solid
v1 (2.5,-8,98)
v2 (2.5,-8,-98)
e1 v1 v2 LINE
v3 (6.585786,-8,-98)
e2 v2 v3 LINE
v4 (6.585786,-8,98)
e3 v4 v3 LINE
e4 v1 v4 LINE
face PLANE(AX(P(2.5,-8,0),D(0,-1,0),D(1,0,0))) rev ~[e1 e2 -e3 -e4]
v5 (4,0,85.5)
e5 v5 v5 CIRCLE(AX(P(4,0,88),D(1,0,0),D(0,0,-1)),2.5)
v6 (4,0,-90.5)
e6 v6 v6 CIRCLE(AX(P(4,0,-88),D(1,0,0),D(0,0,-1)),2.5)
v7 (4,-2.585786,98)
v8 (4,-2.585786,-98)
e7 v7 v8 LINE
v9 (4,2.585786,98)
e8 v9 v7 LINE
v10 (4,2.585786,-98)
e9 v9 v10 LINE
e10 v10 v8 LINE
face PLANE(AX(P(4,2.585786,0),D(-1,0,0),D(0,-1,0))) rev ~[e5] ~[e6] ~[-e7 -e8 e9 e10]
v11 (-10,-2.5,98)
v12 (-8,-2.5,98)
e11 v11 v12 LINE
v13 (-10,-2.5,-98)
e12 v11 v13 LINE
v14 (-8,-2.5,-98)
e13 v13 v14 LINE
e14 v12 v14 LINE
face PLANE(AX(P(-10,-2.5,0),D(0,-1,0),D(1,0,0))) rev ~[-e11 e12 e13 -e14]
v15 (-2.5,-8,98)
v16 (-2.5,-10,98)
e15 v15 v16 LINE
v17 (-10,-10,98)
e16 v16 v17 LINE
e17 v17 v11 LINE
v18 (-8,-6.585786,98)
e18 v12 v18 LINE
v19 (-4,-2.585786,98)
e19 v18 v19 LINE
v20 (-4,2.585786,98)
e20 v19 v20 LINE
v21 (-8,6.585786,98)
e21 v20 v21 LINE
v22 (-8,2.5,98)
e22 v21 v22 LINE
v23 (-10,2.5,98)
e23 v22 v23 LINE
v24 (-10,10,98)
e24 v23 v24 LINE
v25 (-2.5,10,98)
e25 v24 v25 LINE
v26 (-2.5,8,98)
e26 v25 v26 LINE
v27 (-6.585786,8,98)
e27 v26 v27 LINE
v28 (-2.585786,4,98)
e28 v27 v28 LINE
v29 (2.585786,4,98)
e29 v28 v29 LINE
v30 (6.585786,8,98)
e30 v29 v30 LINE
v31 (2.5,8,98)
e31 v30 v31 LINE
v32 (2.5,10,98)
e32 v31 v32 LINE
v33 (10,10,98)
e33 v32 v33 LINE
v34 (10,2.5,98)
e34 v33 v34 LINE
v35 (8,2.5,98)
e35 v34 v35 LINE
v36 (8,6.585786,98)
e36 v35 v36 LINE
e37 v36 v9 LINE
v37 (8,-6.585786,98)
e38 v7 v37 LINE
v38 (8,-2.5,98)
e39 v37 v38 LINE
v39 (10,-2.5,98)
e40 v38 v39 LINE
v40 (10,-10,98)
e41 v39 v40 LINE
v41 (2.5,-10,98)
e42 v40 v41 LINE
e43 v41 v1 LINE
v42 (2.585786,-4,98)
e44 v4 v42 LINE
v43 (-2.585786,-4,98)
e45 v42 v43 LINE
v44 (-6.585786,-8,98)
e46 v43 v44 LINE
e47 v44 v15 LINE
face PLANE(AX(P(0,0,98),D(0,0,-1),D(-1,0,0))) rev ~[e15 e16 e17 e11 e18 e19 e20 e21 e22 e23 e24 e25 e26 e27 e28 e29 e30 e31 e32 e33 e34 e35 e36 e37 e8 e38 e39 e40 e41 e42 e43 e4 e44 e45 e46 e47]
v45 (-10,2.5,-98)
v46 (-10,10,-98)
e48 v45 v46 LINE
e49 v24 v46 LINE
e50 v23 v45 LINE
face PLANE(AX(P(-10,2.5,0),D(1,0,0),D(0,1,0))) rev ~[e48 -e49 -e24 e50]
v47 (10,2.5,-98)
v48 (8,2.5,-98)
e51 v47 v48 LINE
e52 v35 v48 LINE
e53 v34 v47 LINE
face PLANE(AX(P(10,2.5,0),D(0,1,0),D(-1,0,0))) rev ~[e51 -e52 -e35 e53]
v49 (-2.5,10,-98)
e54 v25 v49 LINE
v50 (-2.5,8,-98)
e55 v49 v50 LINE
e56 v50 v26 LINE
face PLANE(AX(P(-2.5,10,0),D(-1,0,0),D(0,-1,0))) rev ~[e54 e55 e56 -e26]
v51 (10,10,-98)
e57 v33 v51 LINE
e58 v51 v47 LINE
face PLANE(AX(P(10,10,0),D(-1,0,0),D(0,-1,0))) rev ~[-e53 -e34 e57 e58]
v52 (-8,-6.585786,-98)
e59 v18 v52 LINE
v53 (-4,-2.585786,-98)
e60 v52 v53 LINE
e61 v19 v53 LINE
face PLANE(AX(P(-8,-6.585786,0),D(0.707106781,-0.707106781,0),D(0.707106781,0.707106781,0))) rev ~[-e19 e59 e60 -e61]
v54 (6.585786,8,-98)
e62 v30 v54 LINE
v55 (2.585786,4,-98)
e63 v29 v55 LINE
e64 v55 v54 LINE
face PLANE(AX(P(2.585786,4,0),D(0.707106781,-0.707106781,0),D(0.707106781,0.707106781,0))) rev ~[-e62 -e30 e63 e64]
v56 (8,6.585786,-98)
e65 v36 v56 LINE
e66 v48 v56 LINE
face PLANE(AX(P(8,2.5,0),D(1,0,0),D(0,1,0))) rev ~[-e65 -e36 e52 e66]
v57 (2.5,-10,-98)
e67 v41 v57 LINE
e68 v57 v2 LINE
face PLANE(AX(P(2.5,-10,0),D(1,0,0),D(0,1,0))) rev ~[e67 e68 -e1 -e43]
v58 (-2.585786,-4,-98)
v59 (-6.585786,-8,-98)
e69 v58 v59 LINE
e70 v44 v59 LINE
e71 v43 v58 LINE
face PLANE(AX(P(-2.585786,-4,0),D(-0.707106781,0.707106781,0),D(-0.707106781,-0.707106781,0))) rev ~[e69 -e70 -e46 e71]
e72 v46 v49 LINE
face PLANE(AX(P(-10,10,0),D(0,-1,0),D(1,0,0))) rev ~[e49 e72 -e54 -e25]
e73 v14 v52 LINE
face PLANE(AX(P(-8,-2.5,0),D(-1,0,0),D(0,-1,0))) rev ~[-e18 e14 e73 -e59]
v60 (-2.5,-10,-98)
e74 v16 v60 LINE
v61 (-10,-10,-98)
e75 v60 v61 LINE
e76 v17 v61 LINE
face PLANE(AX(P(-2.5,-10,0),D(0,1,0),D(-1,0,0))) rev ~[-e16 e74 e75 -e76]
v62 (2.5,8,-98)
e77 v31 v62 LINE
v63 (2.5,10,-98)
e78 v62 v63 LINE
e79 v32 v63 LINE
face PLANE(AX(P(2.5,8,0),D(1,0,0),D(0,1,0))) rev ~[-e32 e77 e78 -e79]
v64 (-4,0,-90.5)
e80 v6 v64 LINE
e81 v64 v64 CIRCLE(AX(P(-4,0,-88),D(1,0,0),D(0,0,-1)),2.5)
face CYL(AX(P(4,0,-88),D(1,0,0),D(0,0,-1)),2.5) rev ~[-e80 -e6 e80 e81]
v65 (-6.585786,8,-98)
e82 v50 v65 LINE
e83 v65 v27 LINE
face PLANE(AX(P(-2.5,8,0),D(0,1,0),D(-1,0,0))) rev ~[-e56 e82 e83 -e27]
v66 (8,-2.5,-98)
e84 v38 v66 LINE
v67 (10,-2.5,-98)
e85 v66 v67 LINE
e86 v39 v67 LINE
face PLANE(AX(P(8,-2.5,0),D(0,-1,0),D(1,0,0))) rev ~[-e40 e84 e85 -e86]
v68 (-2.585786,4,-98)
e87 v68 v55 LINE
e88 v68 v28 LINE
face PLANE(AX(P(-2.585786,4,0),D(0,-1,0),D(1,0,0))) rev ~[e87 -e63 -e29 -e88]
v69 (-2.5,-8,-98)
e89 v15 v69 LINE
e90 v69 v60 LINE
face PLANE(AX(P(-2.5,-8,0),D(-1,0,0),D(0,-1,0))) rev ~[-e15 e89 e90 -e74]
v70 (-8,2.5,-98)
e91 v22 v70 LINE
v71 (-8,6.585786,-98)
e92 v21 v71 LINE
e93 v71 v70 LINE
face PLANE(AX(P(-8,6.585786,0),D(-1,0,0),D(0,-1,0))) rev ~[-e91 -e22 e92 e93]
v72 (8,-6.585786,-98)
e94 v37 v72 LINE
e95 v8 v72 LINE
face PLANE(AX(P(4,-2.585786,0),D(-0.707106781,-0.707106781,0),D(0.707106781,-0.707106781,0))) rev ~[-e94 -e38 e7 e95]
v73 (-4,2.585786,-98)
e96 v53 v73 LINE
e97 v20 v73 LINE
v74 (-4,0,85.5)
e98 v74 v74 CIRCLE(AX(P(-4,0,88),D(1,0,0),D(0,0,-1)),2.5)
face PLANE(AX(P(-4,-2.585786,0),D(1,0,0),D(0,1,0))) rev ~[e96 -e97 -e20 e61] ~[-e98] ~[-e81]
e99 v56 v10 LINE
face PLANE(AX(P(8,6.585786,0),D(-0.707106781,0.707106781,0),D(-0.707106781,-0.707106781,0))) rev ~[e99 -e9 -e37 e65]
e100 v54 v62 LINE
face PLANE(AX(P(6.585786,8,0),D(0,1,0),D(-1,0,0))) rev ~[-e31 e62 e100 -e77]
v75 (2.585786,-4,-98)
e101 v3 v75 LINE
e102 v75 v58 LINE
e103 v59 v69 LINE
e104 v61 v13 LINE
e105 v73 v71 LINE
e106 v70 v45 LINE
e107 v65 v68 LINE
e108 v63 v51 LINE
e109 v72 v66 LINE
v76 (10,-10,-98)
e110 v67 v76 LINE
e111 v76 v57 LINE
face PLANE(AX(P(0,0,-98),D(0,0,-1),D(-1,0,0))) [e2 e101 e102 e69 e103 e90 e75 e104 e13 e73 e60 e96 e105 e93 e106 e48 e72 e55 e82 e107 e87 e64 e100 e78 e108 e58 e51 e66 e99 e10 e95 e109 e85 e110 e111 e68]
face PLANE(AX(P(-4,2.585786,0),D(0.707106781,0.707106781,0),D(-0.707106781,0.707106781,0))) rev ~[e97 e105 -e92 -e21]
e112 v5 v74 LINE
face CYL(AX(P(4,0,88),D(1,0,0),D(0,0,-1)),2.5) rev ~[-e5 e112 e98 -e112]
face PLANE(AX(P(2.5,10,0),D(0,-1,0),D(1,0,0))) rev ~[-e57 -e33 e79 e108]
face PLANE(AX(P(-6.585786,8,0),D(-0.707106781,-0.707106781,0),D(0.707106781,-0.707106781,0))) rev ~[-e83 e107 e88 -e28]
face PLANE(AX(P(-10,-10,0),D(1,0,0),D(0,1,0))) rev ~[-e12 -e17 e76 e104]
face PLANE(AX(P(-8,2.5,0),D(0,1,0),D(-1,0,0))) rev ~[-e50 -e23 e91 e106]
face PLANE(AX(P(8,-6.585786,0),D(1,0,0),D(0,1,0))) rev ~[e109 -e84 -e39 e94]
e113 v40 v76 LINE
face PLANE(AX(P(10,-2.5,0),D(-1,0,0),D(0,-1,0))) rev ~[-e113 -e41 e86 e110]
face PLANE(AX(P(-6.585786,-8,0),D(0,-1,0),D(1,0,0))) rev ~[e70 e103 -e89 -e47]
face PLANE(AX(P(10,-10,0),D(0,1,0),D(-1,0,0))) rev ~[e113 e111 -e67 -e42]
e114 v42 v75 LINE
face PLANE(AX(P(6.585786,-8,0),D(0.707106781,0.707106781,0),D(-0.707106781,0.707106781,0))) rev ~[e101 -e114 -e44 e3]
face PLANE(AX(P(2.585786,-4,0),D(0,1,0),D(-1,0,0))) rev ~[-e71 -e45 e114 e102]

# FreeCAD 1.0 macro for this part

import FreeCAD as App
import Part
import Sketcher

V = App.Vector
Q = App.Units.Quantity


def add_polygon(sketch, points):
    """Adds a closed chain of lines whose ends are joined by coincident constraints."""
    first, n = sketch.GeometryCount, len(points)
    for a, b in zip(points, points[1:] + points[:1]):
        sketch.addGeometry(Part.LineSegment(App.Vector(*a, 0), App.Vector(*b, 0)), False)
    for i in range(n):
        sketch.addConstraint(Sketcher.Constraint("Coincident", first + i, 2, first + (i + 1) % n, 1))

doc = App.newDocument("Part")
body = doc.addObject("PartDesign::Body", "Body")

# Sketch on XY plane
sketch1 = doc.addObject("Sketcher::SketchObject", "Sketch")
body.addObject(sketch1)
sketch1.AttachmentSupport = (doc.XY_Plane, [""])
sketch1.MapMode = "FlatFace"
add_polygon(sketch1, [(2.6, 4), (-2.6, 4), (-6.6, 8), (-2.5, 8), (-2.5, 10), (-10, 10), (-10, 2.5), (-8, 2.5), (-8, 6.6), (-4, 2.6), (-4, -2.6), (-8, -6.6), (-8, -2.5), (-10, -2.5), (-10, -10), (-2.5, -10), (-2.5, -8), (-6.6, -8), (-2.6, -4), (2.6, -4), (6.6, -8), (2.5, -8), (2.5, -10), (10, -10), (10, -2.5), (8, -2.5), (8, -6.6), (4, -2.6), (4, 2.6), (8, 6.6), (8, 2.5), (10, 2.5), (10, 10), (2.5, 10), (2.5, 8), (6.6, 8)])  # lines 0-35
sketch1.addConstraint(Sketcher.Constraint("Horizontal", 0))
sketch1.addConstraint(Sketcher.Constraint("Horizontal", 2))
sketch1.addConstraint(Sketcher.Constraint("Vertical", 3))
sketch1.addConstraint(Sketcher.Constraint("Horizontal", 4))
sketch1.addConstraint(Sketcher.Constraint("Vertical", 5))
sketch1.addConstraint(Sketcher.Constraint("Horizontal", 6))
sketch1.addConstraint(Sketcher.Constraint("Vertical", 7))
sketch1.addConstraint(Sketcher.Constraint("Vertical", 9))
sketch1.addConstraint(Sketcher.Constraint("Vertical", 11))
sketch1.addConstraint(Sketcher.Constraint("Horizontal", 12))
sketch1.addConstraint(Sketcher.Constraint("Vertical", 13))
sketch1.addConstraint(Sketcher.Constraint("Horizontal", 14))
sketch1.addConstraint(Sketcher.Constraint("Vertical", 15))
sketch1.addConstraint(Sketcher.Constraint("Horizontal", 16))
sketch1.addConstraint(Sketcher.Constraint("Horizontal", 18))
sketch1.addConstraint(Sketcher.Constraint("Horizontal", 20))
sketch1.addConstraint(Sketcher.Constraint("Vertical", 21))
sketch1.addConstraint(Sketcher.Constraint("Horizontal", 22))
sketch1.addConstraint(Sketcher.Constraint("Vertical", 23))
sketch1.addConstraint(Sketcher.Constraint("Horizontal", 24))
sketch1.addConstraint(Sketcher.Constraint("Vertical", 25))
sketch1.addConstraint(Sketcher.Constraint("Vertical", 27))
sketch1.addConstraint(Sketcher.Constraint("Vertical", 29))
sketch1.addConstraint(Sketcher.Constraint("Horizontal", 30))
sketch1.addConstraint(Sketcher.Constraint("Vertical", 31))
sketch1.addConstraint(Sketcher.Constraint("Horizontal", 32))
sketch1.addConstraint(Sketcher.Constraint("Vertical", 33))
sketch1.addConstraint(Sketcher.Constraint("Horizontal", 34))
sketch1.addConstraint(Sketcher.Constraint("Symmetric", 0, 2, 18, 2, -1, 1))
sketch1.addConstraint(Sketcher.Constraint("Symmetric", 1, 2, 19, 2, -1, 1))
sketch1.addConstraint(Sketcher.Constraint("Symmetric", 3, 2, 21, 2, -1, 1))
sketch1.addConstraint(Sketcher.Constraint("Symmetric", 5, 2, 23, 2, -1, 1))
sketch1.addConstraint(Sketcher.Constraint("Symmetric", 7, 2, 25, 2, -1, 1))
sketch1.addConstraint(Sketcher.Constraint("Symmetric", 8, 2, 26, 2, -1, 1))
sketch1.addConstraint(Sketcher.Constraint("Symmetric", 10, 2, 28, 2, -1, 1))
sketch1.addConstraint(Sketcher.Constraint("Symmetric", 12, 2, 30, 2, -1, 1))
sketch1.addConstraint(Sketcher.Constraint("Symmetric", 14, 2, 32, 2, -1, 1))
sketch1.addConstraint(Sketcher.Constraint("Symmetric", 16, 2, 34, 2, -1, 1))
sketch1.addConstraint(Sketcher.Constraint("Symmetric", 16, 2, 19, 2, -2))
sketch1.addConstraint(Sketcher.Constraint("Symmetric", 14, 2, 21, 2, -2))
sketch1.addConstraint(Sketcher.Constraint("Symmetric", 12, 2, 23, 2, -2))
sketch1.addConstraint(Sketcher.Constraint("Symmetric", 10, 2, 25, 2, -2))
sketch1.addConstraint(Sketcher.Constraint("Parallel", 1, 8))
sketch1.addConstraint(Sketcher.Constraint("Perpendicular", 8, 10))
sketch1.addConstraint(Sketcher.Constraint("Parallel", 10, 17))
sketch1.addConstraint(Sketcher.Constraint("Perpendicular", 26, 28))
sketch1.addConstraint(Sketcher.Constraint("Parallel", 28, 35))
sketch1.addConstraint(Sketcher.Constraint("Horizontal", 9, 2, 26, 2))
sketch1.addConstraint(Sketcher.Constraint("Equal", 30, 3))
sketch1.addConstraint(Sketcher.Constraint("Equal", 32, 5))
sketch1.addConstraint(Sketcher.Constraint("Equal", 34, 7))
sketch1.addConstraint(Sketcher.Constraint("Equal", 18, 9))
sketch1.addConstraint(Sketcher.Constraint("Equal", 1, 8))
sketch1.addConstraint(Sketcher.Constraint("DistanceX", 6, 1, 6, 2, Q("2 mm")))
sketch1.addConstraint(Sketcher.Constraint("DistanceX", 4, 2, 4, 1, Q("7.5 mm")))
sketch1.addConstraint(Sketcher.Constraint("DistanceY", -1, 1, 0, 2, Q("4 mm")))
sketch1.addConstraint(Sketcher.Constraint("DistanceY", -1, 1, 1, 2, Q("8 mm")))
sketch1.addConstraint(Sketcher.Constraint("DistanceX", 0, 2, 0, 1, Q("5.171573 mm")))
pad1 = doc.addObject("PartDesign::Pad", "Pad")
body.addObject(pad1)
pad1.Profile = sketch1
pad1.Length = 196
pad1.Midplane = True

# Sketch on YZ plane
sketch2 = doc.addObject("Sketcher::SketchObject", "Sketch001")
body.addObject(sketch2)
sketch2.AttachmentSupport = (doc.YZ_Plane, [""])
sketch2.MapMode = "FlatFace"
sketch2.AttachmentOffset = App.Placement(V(0, 0, 4), App.Rotation())
sketch2.addGeometry(Part.Circle(V(0, -88, 0), V(0, 0, 1), 2.5), False)
sketch2.addGeometry(Part.Circle(V(0, 88, 0), V(0, 0, 1), 2.5), False)
sketch2.addConstraint(Sketcher.Constraint("Equal", 0, 1))
sketch2.addConstraint(Sketcher.Constraint("Symmetric", 0, 3, 1, 3, -1, 1))
sketch2.addConstraint(Sketcher.Constraint("PointOnObject", 0, 3, -2))
sketch2.addConstraint(Sketcher.Constraint("Diameter", 0, Q("5 mm")))
sketch2.addConstraint(Sketcher.Constraint("DistanceY", 0, 3, -1, 1, Q("88 mm")))
pocket1 = doc.addObject("PartDesign::Pocket", "Pocket")
body.addObject(pocket1)
pocket1.Profile = sketch2
pocket1.Length = 8

doc.recompute()
